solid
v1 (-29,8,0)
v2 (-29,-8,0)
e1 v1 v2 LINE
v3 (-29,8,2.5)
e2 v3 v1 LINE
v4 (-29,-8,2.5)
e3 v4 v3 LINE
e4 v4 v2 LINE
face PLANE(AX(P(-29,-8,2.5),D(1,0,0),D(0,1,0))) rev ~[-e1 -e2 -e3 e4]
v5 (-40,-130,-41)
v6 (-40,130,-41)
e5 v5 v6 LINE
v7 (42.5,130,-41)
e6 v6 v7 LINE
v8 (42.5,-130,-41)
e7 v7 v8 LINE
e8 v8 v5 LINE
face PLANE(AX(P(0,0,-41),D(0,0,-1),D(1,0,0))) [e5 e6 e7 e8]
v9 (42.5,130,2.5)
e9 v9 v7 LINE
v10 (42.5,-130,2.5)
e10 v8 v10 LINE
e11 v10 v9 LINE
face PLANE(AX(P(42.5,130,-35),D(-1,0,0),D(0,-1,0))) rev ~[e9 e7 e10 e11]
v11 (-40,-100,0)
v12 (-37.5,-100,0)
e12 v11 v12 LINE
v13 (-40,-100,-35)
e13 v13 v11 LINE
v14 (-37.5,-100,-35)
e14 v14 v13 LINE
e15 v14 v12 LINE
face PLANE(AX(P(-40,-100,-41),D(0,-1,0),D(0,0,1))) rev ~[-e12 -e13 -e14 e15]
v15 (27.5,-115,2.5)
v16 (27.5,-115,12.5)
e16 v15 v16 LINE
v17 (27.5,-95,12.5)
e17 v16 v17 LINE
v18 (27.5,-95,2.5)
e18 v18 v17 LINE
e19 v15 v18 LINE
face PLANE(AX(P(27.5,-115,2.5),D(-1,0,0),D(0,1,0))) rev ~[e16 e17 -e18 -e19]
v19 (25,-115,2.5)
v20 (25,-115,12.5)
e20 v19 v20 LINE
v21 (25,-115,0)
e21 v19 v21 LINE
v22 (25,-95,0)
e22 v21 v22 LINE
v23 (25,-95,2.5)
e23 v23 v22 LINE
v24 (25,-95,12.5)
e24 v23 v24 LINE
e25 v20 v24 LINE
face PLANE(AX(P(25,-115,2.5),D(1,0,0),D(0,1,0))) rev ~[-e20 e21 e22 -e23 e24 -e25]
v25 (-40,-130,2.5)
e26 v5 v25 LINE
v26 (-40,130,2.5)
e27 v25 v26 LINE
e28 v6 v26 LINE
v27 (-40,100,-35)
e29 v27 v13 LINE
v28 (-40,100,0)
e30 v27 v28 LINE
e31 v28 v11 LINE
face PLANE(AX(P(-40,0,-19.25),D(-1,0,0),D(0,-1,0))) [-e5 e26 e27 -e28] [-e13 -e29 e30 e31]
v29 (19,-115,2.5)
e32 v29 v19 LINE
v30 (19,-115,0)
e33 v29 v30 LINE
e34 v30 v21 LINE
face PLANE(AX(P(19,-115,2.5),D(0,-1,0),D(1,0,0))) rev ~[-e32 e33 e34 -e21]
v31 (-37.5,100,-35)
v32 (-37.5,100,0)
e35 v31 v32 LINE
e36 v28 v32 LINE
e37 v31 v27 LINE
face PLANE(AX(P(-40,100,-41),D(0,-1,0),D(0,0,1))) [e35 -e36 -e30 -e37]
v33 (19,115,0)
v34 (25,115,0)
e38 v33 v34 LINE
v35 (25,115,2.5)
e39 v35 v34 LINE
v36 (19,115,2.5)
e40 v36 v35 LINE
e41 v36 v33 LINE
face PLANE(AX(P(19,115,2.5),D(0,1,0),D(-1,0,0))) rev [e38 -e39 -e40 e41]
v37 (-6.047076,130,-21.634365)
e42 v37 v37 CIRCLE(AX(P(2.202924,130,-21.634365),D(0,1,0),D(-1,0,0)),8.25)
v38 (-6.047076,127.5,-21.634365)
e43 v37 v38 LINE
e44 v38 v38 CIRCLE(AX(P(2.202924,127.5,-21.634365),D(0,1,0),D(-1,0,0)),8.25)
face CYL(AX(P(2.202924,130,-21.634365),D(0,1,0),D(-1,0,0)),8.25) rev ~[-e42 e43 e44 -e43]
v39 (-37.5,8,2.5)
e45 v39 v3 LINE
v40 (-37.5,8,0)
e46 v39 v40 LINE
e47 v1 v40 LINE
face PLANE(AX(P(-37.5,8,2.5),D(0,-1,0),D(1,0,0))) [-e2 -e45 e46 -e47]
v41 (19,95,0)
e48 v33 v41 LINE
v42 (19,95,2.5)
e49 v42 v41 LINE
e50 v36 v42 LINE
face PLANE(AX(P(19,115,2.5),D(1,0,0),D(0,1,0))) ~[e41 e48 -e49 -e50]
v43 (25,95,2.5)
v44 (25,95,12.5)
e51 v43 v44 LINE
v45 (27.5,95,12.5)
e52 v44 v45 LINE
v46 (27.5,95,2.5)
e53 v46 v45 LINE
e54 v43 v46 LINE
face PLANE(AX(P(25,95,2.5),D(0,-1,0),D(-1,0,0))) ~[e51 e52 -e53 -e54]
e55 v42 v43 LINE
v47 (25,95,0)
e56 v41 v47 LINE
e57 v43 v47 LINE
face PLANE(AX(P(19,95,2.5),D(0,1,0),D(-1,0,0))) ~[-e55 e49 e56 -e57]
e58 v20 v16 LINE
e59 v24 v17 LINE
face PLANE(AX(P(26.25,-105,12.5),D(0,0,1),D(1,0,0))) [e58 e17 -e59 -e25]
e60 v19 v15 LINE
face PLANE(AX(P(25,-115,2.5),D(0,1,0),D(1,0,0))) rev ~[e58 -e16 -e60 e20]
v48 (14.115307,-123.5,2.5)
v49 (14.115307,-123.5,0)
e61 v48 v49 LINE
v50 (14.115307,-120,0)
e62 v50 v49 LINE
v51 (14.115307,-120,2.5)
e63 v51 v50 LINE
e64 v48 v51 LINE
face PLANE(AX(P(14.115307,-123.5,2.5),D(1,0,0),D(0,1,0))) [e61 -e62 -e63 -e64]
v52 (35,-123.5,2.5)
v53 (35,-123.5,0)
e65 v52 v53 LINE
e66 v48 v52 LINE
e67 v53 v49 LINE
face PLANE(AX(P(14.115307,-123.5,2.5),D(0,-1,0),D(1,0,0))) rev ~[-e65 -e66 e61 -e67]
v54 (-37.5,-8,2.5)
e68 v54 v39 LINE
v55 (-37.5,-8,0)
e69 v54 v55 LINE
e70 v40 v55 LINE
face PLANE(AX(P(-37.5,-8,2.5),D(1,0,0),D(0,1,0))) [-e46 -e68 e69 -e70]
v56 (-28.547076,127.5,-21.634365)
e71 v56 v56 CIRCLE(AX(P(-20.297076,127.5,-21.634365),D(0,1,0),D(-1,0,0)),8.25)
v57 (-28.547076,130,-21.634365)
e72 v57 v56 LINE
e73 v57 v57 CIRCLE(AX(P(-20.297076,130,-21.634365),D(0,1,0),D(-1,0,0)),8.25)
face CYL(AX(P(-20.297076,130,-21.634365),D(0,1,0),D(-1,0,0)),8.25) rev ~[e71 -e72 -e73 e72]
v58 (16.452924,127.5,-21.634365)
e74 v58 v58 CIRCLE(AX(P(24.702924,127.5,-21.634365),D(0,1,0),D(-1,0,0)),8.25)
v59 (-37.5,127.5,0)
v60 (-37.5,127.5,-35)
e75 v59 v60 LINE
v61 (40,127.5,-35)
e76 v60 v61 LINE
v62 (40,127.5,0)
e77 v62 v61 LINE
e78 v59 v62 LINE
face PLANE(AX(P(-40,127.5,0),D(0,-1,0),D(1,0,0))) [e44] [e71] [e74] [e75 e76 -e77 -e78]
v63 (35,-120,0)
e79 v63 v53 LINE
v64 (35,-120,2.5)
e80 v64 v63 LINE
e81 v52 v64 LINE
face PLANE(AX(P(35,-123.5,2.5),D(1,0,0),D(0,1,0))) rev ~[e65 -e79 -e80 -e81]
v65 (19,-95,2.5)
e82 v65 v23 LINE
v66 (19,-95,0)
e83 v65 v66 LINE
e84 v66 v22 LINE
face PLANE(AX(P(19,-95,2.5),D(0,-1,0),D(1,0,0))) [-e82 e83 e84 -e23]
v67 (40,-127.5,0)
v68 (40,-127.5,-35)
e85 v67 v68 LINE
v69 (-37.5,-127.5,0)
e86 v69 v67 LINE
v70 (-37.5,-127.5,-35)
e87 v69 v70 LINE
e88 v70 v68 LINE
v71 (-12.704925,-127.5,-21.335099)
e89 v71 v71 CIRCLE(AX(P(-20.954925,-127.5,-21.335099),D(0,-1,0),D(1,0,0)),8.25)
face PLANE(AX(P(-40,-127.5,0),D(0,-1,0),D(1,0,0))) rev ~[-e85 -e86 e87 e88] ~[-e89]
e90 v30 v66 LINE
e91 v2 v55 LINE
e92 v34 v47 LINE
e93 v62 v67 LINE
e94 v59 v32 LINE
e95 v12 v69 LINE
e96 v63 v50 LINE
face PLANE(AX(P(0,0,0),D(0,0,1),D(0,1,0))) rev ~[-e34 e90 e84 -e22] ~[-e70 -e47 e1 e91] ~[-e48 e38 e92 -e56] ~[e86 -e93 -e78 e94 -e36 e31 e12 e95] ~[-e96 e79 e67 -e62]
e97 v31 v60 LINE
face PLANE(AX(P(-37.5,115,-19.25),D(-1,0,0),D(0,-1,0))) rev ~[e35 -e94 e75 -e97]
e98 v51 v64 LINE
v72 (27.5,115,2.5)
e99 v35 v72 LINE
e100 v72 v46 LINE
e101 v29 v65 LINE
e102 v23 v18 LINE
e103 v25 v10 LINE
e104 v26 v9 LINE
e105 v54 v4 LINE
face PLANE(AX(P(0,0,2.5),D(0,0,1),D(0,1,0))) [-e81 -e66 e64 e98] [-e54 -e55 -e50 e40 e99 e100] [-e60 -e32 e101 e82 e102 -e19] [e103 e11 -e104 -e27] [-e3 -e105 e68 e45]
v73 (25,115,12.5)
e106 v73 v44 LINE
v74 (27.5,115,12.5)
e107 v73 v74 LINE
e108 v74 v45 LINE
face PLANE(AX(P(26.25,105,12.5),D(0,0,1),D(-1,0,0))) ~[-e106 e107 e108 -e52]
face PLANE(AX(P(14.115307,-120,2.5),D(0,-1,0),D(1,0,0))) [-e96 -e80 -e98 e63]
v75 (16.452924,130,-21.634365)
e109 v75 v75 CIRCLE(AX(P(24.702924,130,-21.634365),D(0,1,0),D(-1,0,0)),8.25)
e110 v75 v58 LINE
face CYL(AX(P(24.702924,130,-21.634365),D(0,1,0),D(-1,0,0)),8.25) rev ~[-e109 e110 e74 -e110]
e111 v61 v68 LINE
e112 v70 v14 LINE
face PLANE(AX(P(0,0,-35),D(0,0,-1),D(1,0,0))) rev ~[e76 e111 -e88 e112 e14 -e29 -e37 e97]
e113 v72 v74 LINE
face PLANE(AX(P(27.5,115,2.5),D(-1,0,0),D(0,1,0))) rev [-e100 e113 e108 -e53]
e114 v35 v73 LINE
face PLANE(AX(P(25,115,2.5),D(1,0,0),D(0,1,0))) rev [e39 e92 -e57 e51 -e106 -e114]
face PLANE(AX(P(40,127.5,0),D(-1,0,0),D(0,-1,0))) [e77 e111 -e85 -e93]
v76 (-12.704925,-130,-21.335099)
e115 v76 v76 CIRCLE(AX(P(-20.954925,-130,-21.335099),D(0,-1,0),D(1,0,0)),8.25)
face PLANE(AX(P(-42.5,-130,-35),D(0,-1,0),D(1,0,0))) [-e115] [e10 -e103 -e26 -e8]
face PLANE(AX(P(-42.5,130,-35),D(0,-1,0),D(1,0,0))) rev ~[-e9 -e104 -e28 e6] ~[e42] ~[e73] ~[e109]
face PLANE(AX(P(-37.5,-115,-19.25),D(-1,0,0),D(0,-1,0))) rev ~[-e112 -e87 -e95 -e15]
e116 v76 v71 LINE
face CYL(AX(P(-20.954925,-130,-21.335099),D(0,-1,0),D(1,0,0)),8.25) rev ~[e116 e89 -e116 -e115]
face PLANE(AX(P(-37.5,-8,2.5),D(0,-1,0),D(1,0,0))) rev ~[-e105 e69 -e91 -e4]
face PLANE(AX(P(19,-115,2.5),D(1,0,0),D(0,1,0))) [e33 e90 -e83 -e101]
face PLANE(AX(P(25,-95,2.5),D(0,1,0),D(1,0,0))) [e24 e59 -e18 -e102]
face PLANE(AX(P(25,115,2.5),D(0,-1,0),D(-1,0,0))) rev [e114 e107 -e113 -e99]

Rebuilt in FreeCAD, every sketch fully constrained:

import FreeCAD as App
import Part
import Sketcher

V = App.Vector
Q = App.Units.Quantity

doc = App.newDocument("Part")
body = doc.addObject("PartDesign::Body", "Body")

sketch1 = body.newObject("Sketcher::SketchObject", "Sketch")
sketch1.AttachmentSupport = (doc.getObject("XY_Plane"), [""])
sketch1.MapMode = "FlatFace"
sketch1.addGeometry([
    Part.LineSegment(V(-42.5, -130, 0), V(42.5, -130, 0)),
    Part.LineSegment(V(42.5, -130, 0), V(42.5, 130, 0)),
    Part.LineSegment(V(42.5, 130, 0), V(-42.5, 130, 0)),
    Part.LineSegment(V(-42.5, 130, 0), V(-42.5, -130, 0)),
], False)
sketch1.addConstraint([
    Sketcher.Constraint("Coincident", 0, 2, 1, 1),
    Sketcher.Constraint("Coincident", 1, 2, 2, 1),
    Sketcher.Constraint("Coincident", 2, 2, 3, 1),
    Sketcher.Constraint("Coincident", 3, 2, 0, 1),
    Sketcher.Constraint("Horizontal", 0),
    Sketcher.Constraint("Vertical", 1),
    Sketcher.Constraint("Horizontal", 2),
    Sketcher.Constraint("Vertical", 3),
    Sketcher.Constraint("Symmetric", 0, 2, 2, 2, -1, 1),
    Sketcher.Constraint("DistanceX", 0, 1, 0, 2, Q("85 mm")),
    Sketcher.Constraint("DistanceY", 1, 1, 1, 2, Q("260 mm")),
])
pad1 = body.newObject("PartDesign::Pad", "Pad")
pad1.Profile = sketch1
pad1.Length = 2.5

sketch2 = body.newObject("Sketcher::SketchObject", "Sketch001")
sketch2.AttachmentSupport = (doc.getObject("XY_Plane"), [""])
sketch2.MapMode = "FlatFace"
sketch2.addGeometry([
    Part.LineSegment(V(-42.5, -130, 0), V(-42.5, 130, 0)),
    Part.LineSegment(V(-42.5, 130, 0), V(42.5, 130, 0)),
    Part.LineSegment(V(42.5, 130, 0), V(42.5, -130, 0)),
    Part.LineSegment(V(42.5, -130, 0), V(-42.5, -130, 0)),
    Part.LineSegment(V(40, 127.5, 0), V(-40, 127.5, 0)),
    Part.LineSegment(V(-40, 127.5, 0), V(-40, -127.5, 0)),
    Part.LineSegment(V(-40, -127.5, 0), V(40, -127.5, 0)),
    Part.LineSegment(V(40, -127.5, 0), V(40, 127.5, 0)),
], False)
sketch2.addConstraint([
    Sketcher.Constraint("Coincident", 0, 2, 1, 1),
    Sketcher.Constraint("Coincident", 1, 2, 2, 1),
    Sketcher.Constraint("Coincident", 2, 2, 3, 1),
    Sketcher.Constraint("Coincident", 3, 2, 0, 1),
    Sketcher.Constraint("Coincident", 4, 2, 5, 1),
    Sketcher.Constraint("Coincident", 5, 2, 6, 1),
    Sketcher.Constraint("Coincident", 6, 2, 7, 1),
    Sketcher.Constraint("Coincident", 7, 2, 4, 1),
    Sketcher.Constraint("Vertical", 0),
    Sketcher.Constraint("Horizontal", 1),
    Sketcher.Constraint("Vertical", 2),
    Sketcher.Constraint("Horizontal", 3),
    Sketcher.Constraint("Horizontal", 4),
    Sketcher.Constraint("Vertical", 5),
    Sketcher.Constraint("Horizontal", 6),
    Sketcher.Constraint("Vertical", 7),
    Sketcher.Constraint("Symmetric", 0, 2, 2, 2, -1, 1),
    Sketcher.Constraint("Symmetric", 4, 2, 6, 2, -1, 1),
    Sketcher.Constraint("DistanceX", 1, 1, 1, 2, Q("85 mm")),
    Sketcher.Constraint("DistanceX", 4, 2, 4, 1, Q("80 mm")),
    Sketcher.Constraint("DistanceY", 0, 1, 0, 2, Q("260 mm")),
    Sketcher.Constraint("DistanceY", 5, 2, 5, 1, Q("255 mm")),
])
pad2 = body.newObject("PartDesign::Pad", "Pad001")
pad2.Profile = sketch2
pad2.Length = 35
pad2.Reversed = True

sketch3 = body.newObject("Sketcher::SketchObject", "Sketch002")
sketch3.AttachmentSupport = (doc.getObject("XY_Plane"), [""])
sketch3.MapMode = "FlatFace"
sketch3.AttachmentOffset = App.Placement(V(0, 0, -35), App.Rotation())
sketch3.addGeometry([
    Part.LineSegment(V(-42.5, -130, 0), V(-42.5, 130, 0)),
    Part.LineSegment(V(-42.5, 130, 0), V(42.5, 130, 0)),
    Part.LineSegment(V(42.5, 130, 0), V(42.5, -130, 0)),
    Part.LineSegment(V(42.5, -130, 0), V(-42.5, -130, 0)),
], False)
sketch3.addConstraint([
    Sketcher.Constraint("Coincident", 0, 2, 1, 1),
    Sketcher.Constraint("Coincident", 1, 2, 2, 1),
    Sketcher.Constraint("Coincident", 2, 2, 3, 1),
    Sketcher.Constraint("Coincident", 3, 2, 0, 1),
    Sketcher.Constraint("Vertical", 0),
    Sketcher.Constraint("Horizontal", 1),
    Sketcher.Constraint("Vertical", 2),
    Sketcher.Constraint("Horizontal", 3),
    Sketcher.Constraint("Symmetric", 0, 2, 2, 2, -1, 1),
    Sketcher.Constraint("DistanceX", 1, 1, 1, 2, Q("85 mm")),
    Sketcher.Constraint("DistanceY", 0, 1, 0, 2, Q("260 mm")),
])
pad3 = body.newObject("PartDesign::Pad", "Pad002")
pad3.Profile = sketch3
pad3.Length = 6
pad3.Reversed = True

sketch4 = body.newObject("Sketcher::SketchObject", "Sketch003")
sketch4.AttachmentSupport = (doc.getObject("YZ_Plane"), [""])
sketch4.MapMode = "FlatFace"
sketch4.AttachmentOffset = App.Placement(V(0, 0, -42.5), App.Rotation())
sketch4.addGeometry([
    Part.LineSegment(V(130, 2.5, 0), V(130, -41, 0)),
    Part.LineSegment(V(130, -41, 0), V(-130, -41, 0)),
    Part.LineSegment(V(-130, -41, 0), V(-130, 2.5, 0)),
    Part.LineSegment(V(-130, 2.5, 0), V(130, 2.5, 0)),
], False)
sketch4.addConstraint([
    Sketcher.Constraint("Coincident", 0, 2, 1, 1),
    Sketcher.Constraint("Coincident", 1, 2, 2, 1),
    Sketcher.Constraint("Coincident", 2, 2, 3, 1),
    Sketcher.Constraint("Coincident", 3, 2, 0, 1),
    Sketcher.Constraint("Vertical", 0),
    Sketcher.Constraint("Horizontal", 1),
    Sketcher.Constraint("Vertical", 2),
    Sketcher.Constraint("Horizontal", 3),
    Sketcher.Constraint("DistanceX", 1, 2, 1, 1, Q("260 mm")),
    Sketcher.Constraint("DistanceY", 0, 2, 0, 1, Q("43.5 mm")),
    Sketcher.Constraint("DistanceX", -1, 1, 0, 2, Q("130 mm")),
    Sketcher.Constraint("DistanceY", 0, 2, -1, 1, Q("41 mm")),
])
pocket1 = body.newObject("PartDesign::Pocket", "Pocket")
pocket1.Profile = sketch4
pocket1.Length = 2.5
pocket1.Reversed = True

sketch5 = body.newObject("Sketcher::SketchObject", "Sketch004")
sketch5.AttachmentSupport = (doc.getObject("XY_Plane"), [""])
sketch5.MapMode = "FlatFace"
sketch5.AttachmentOffset = App.Placement(V(0, 0, 2.5), App.Rotation())
sketch5.addGeometry([
    Part.LineSegment(V(-37.5, 8, 0), V(-37.5, -8, 0)),
    Part.LineSegment(V(-37.5, -8, 0), V(-29, -8, 0)),
    Part.LineSegment(V(-29, -8, 0), V(-29, 8, 0)),
    Part.LineSegment(V(-29, 8, 0), V(-37.5, 8, 0)),
], False)
sketch5.addConstraint([
    Sketcher.Constraint("Coincident", 0, 2, 1, 1),
    Sketcher.Constraint("Coincident", 1, 2, 2, 1),
    Sketcher.Constraint("Coincident", 2, 2, 3, 1),
    Sketcher.Constraint("Coincident", 3, 2, 0, 1),
    Sketcher.Constraint("Vertical", 0),
    Sketcher.Constraint("Horizontal", 1),
    Sketcher.Constraint("Vertical", 2),
    Sketcher.Constraint("Horizontal", 3),
    Sketcher.Constraint("DistanceY", 0, 2, 0, 1, Q("16 mm")),
    Sketcher.Constraint("DistanceX", 1, 1, 1, 2, Q("8.5 mm")),
    Sketcher.Constraint("DistanceY", 0, 2, -1, 1, Q("8 mm")),
    Sketcher.Constraint("DistanceX", 1, 2, -1, 1, Q("29 mm")),
])
pocket2 = body.newObject("PartDesign::Pocket", "Pocket001")
pocket2.Profile = sketch5
pocket2.Type = "UpToFirst"

sketch6 = body.newObject("Sketcher::SketchObject", "Sketch005")
sketch6.AttachmentSupport = (doc.getObject("XZ_Plane"), [""])
sketch6.MapMode = "FlatFace"
sketch6.AttachmentOffset = App.Placement(V(0, 0, 130), App.Rotation())
sketch6.addGeometry(Part.Circle(V(-20.954925, -21.335099, 0), V(0, 0, 1), 8.25), False)
sketch6.addConstraint([
    Sketcher.Constraint("Diameter", 0, Q("16.5 mm")),
    Sketcher.Constraint("DistanceY", 0, 3, -1, 1, Q("21.335099 mm")),
    Sketcher.Constraint("DistanceX", 0, 3, -1, 1, Q("20.954925 mm")),
])
pocket3 = body.newObject("PartDesign::Pocket", "Pocket002")
pocket3.Profile = sketch6
pocket3.Length = 2.5

sketch7 = body.newObject("Sketcher::SketchObject", "Sketch006")
sketch7.AttachmentSupport = (doc.getObject("XZ_Plane"), [""])
sketch7.MapMode = "FlatFace"
sketch7.AttachmentOffset = App.Placement(V(0, 0, -130), App.Rotation())
sketch7.addGeometry([
    Part.Circle(V(24.702924, -21.634365, 0), V(0, 0, 1), 8.25),
    Part.Circle(V(2.202924, -21.634365, 0), V(0, 0, 1), 8.25),
    Part.Circle(V(-20.297076, -21.634365, 0), V(0, 0, 1), 8.25),
], False)
sketch7.addConstraint([
    Sketcher.Constraint("Equal", 0, 1),
    Sketcher.Constraint("Equal", 1, 2),
    Sketcher.Constraint("Horizontal", 0, 3, 1, 3),
    Sketcher.Constraint("Horizontal", 1, 3, 2, 3),
    Sketcher.Constraint("Diameter", 0, Q("16.5 mm")),
    Sketcher.Constraint("DistanceX", 2, 3, 0, 3, Q("45 mm")),
    Sketcher.Constraint("DistanceX", 1, 3, 0, 3, Q("22.5 mm")),
    Sketcher.Constraint("DistanceX", -1, 1, 0, 3, Q("24.702924 mm")),
    Sketcher.Constraint("DistanceY", 0, 3, -1, 1, Q("21.634365 mm")),
])
pocket4 = body.newObject("PartDesign::Pocket", "Pocket003")
pocket4.Profile = sketch7
pocket4.Length = 10
pocket4.Reversed = True

sketch8 = body.newObject("Sketcher::SketchObject", "Sketch007")
sketch8.AttachmentSupport = (doc.getObject("XY_Plane"), [""])
sketch8.MapMode = "FlatFace"
sketch8.AttachmentOffset = App.Placement(V(0, 0, 2.5), App.Rotation())
sketch8.addGeometry([
    Part.LineSegment(V(14.115307, -120, 0), V(14.115307, -123.5, 0)),
    Part.LineSegment(V(14.115307, -123.5, 0), V(35, -123.5, 0)),
    Part.LineSegment(V(35, -123.5, 0), V(35, -120, 0)),
    Part.LineSegment(V(35, -120, 0), V(14.115307, -120, 0)),
], False)
sketch8.addConstraint([
    Sketcher.Constraint("Coincident", 0, 2, 1, 1),
    Sketcher.Constraint("Coincident", 1, 2, 2, 1),
    Sketcher.Constraint("Coincident", 2, 2, 3, 1),
    Sketcher.Constraint("Coincident", 3, 2, 0, 1),
    Sketcher.Constraint("Vertical", 0),
    Sketcher.Constraint("Horizontal", 1),
    Sketcher.Constraint("Vertical", 2),
    Sketcher.Constraint("Horizontal", 3),
    Sketcher.Constraint("DistanceY", 0, 2, 0, 1, Q("3.5 mm")),
    Sketcher.Constraint("DistanceX", -1, 1, 1, 2, Q("35 mm")),
    Sketcher.Constraint("DistanceY", 2, 2, -1, 1, Q("120 mm")),
    Sketcher.Constraint("DistanceX", 1, 1, 1, 2, Q("20.884693 mm")),
])
pocket5 = body.newObject("PartDesign::Pocket", "Pocket004")
pocket5.Profile = sketch8
pocket5.Type = "UpToFirst"

sketch9 = body.newObject("Sketcher::SketchObject", "Sketch008")
sketch9.AttachmentSupport = (doc.getObject("YZ_Plane"), [""])
sketch9.MapMode = "FlatFace"
sketch9.AttachmentOffset = App.Placement(V(0, 0, -40), App.Rotation())
sketch9.addGeometry([
    Part.LineSegment(V(130, 2.5, 0), V(130, -41, 0)),
    Part.LineSegment(V(130, -41, 0), V(100, -41, 0)),
    Part.LineSegment(V(100, -41, 0), V(100, 2.5, 0)),
    Part.LineSegment(V(100, 2.5, 0), V(130, 2.5, 0)),
    Part.LineSegment(V(-100, 2.5, 0), V(-100, -41, 0)),
    Part.LineSegment(V(-100, -41, 0), V(-130, -41, 0)),
    Part.LineSegment(V(-130, -41, 0), V(-130, 2.5, 0)),
    Part.LineSegment(V(-130, 2.5, 0), V(-100, 2.5, 0)),
], False)
sketch9.addConstraint([
    Sketcher.Constraint("Coincident", 0, 2, 1, 1),
    Sketcher.Constraint("Coincident", 1, 2, 2, 1),
    Sketcher.Constraint("Coincident", 2, 2, 3, 1),
    Sketcher.Constraint("Coincident", 3, 2, 0, 1),
    Sketcher.Constraint("Coincident", 4, 2, 5, 1),
    Sketcher.Constraint("Coincident", 5, 2, 6, 1),
    Sketcher.Constraint("Coincident", 6, 2, 7, 1),
    Sketcher.Constraint("Coincident", 7, 2, 4, 1),
    Sketcher.Constraint("Vertical", 0),
    Sketcher.Constraint("Horizontal", 1),
    Sketcher.Constraint("Vertical", 2),
    Sketcher.Constraint("Horizontal", 3),
    Sketcher.Constraint("Vertical", 4),
    Sketcher.Constraint("Horizontal", 5),
    Sketcher.Constraint("Vertical", 6),
    Sketcher.Constraint("Horizontal", 7),
    Sketcher.Constraint("Symmetric", 1, 2, 4, 2, -2),
    Sketcher.Constraint("Symmetric", 3, 2, 6, 2, -2),
    Sketcher.Constraint("DistanceX", 1, 2, 1, 1, Q("30 mm")),
    Sketcher.Constraint("DistanceY", 0, 2, 0, 1, Q("43.5 mm")),
    Sketcher.Constraint("DistanceX", -1, 1, 0, 2, Q("130 mm")),
    Sketcher.Constraint("DistanceY", 0, 2, -1, 1, Q("41 mm")),
])
pad4 = body.newObject("PartDesign::Pad", "Pad003")
pad4.Profile = sketch9
pad4.Length = 2.5

sketch10 = body.newObject("Sketcher::SketchObject", "Sketch009")
sketch10.AttachmentSupport = (doc.getObject("XY_Plane"), [""])
sketch10.MapMode = "FlatFace"
sketch10.AttachmentOffset = App.Placement(V(0, 0, 2.5), App.Rotation())
sketch10.addGeometry([
    Part.LineSegment(V(25, -95, 0), V(25, -115, 0)),
    Part.LineSegment(V(25, -115, 0), V(27.5, -115, 0)),
    Part.LineSegment(V(27.5, -115, 0), V(27.5, -95, 0)),
    Part.LineSegment(V(27.5, -95, 0), V(25, -95, 0)),
], False)
sketch10.addConstraint([
    Sketcher.Constraint("Coincident", 0, 2, 1, 1),
    Sketcher.Constraint("Coincident", 1, 2, 2, 1),
    Sketcher.Constraint("Coincident", 2, 2, 3, 1),
    Sketcher.Constraint("Coincident", 3, 2, 0, 1),
    Sketcher.Constraint("Vertical", 0),
    Sketcher.Constraint("Horizontal", 1),
    Sketcher.Constraint("Vertical", 2),
    Sketcher.Constraint("Horizontal", 3),
    Sketcher.Constraint("DistanceY", 0, 2, 0, 1, Q("20 mm")),
    Sketcher.Constraint("DistanceX", 1, 1, 1, 2, Q("2.5 mm")),
    Sketcher.Constraint("DistanceX", -1, 1, 0, 2, Q("25 mm")),
    Sketcher.Constraint("DistanceY", 0, 2, -1, 1, Q("115 mm")),
])
pad5 = body.newObject("PartDesign::Pad", "Pad004")
pad5.Profile = sketch10
pad5.Length = 10

sketch11 = body.newObject("Sketcher::SketchObject", "Sketch010")
sketch11.AttachmentSupport = (doc.getObject("XY_Plane"), [""])
sketch11.MapMode = "FlatFace"
sketch11.AttachmentOffset = App.Placement(V(0, 0, 2.5), App.Rotation())
sketch11.addGeometry([
    Part.LineSegment(V(19, -95, 0), V(19, -115, 0)),
    Part.LineSegment(V(19, -115, 0), V(25, -115, 0)),
    Part.LineSegment(V(25, -115, 0), V(25, -95, 0)),
    Part.LineSegment(V(25, -95, 0), V(19, -95, 0)),
], False)
sketch11.addConstraint([
    Sketcher.Constraint("Coincident", 0, 2, 1, 1),
    Sketcher.Constraint("Coincident", 1, 2, 2, 1),
    Sketcher.Constraint("Coincident", 2, 2, 3, 1),
    Sketcher.Constraint("Coincident", 3, 2, 0, 1),
    Sketcher.Constraint("Vertical", 0),
    Sketcher.Constraint("Horizontal", 1),
    Sketcher.Constraint("Vertical", 2),
    Sketcher.Constraint("Horizontal", 3),
    Sketcher.Constraint("DistanceX", 1, 1, 1, 2, Q("6 mm")),
    Sketcher.Constraint("DistanceY", 0, 2, 0, 1, Q("20 mm")),
    Sketcher.Constraint("DistanceX", -1, 1, 0, 2, Q("19 mm")),
    Sketcher.Constraint("DistanceY", 0, 2, -1, 1, Q("115 mm")),
])
pocket6 = body.newObject("PartDesign::Pocket", "Pocket005")
pocket6.Profile = sketch11
pocket6.Length = 5
doc.recompute()

mirrored = body.newObject("PartDesign::Mirrored", "Mirrored")
mirrored.Originals = [pad5, pocket6]
mirrored.MirrorPlane = (doc.getObject("XZ_Plane"), [""])
body.Tip = mirrored

doc.recompute()
